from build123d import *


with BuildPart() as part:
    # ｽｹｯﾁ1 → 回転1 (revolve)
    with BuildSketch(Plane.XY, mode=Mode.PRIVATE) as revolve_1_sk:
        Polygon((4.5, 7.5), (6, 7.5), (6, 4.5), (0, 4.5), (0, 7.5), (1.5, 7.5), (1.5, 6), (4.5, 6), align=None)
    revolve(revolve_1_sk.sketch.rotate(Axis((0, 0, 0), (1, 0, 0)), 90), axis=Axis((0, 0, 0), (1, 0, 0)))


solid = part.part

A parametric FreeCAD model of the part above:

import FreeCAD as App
import Part
import Sketcher
from FreeCAD import Vector
Q = App.Units.Quantity

doc = App.newDocument("Part")
body = doc.addObject("PartDesign::Body", "Body")

# Sketch on XY plane
sketch1 = doc.addObject("Sketcher::SketchObject", "Sketch")
body.addObject(sketch1)
sketch1.AttachmentSupport = (doc.XY_Plane, [""])
sketch1.MapMode = "FlatFace"
sketch1.addGeometry([
    Part.LineSegment(Vector(6, 7.5, 0), Vector(4.5, 7.5, 0)),  # 0
    Part.LineSegment(Vector(4.5, 7.5, 0), Vector(4.5, 6, 0)),  # 1
    Part.LineSegment(Vector(4.5, 6, 0), Vector(1.5, 6, 0)),  # 2
    Part.LineSegment(Vector(1.5, 6, 0), Vector(1.5, 7.5, 0)),  # 3
    Part.LineSegment(Vector(1.5, 7.5, 0), Vector(0, 7.5, 0)),  # 4
    Part.LineSegment(Vector(0, 7.5, 0), Vector(0, 4.5, 0)),  # 5
    Part.LineSegment(Vector(0, 4.5, 0), Vector(6, 4.5, 0)),  # 6
    Part.LineSegment(Vector(6, 4.5, 0), Vector(6, 7.5, 0)),  # 7
], False)
sketch1.addConstraint([
    Sketcher.Constraint("Coincident", 0, 2, 1, 1),
    Sketcher.Constraint("Coincident", 1, 2, 2, 1),
    Sketcher.Constraint("Coincident", 2, 2, 3, 1),
    Sketcher.Constraint("Coincident", 3, 2, 4, 1),
    Sketcher.Constraint("Coincident", 4, 2, 5, 1),
    Sketcher.Constraint("Coincident", 5, 2, 6, 1),
    Sketcher.Constraint("Coincident", 6, 2, 7, 1),
    Sketcher.Constraint("Coincident", 7, 2, 0, 1),
    Sketcher.Constraint("Horizontal", 0),
    Sketcher.Constraint("Vertical", 1),
    Sketcher.Constraint("Horizontal", 2),
    Sketcher.Constraint("Vertical", 3),
    Sketcher.Constraint("Horizontal", 4),
    Sketcher.Constraint("Vertical", 5),
    Sketcher.Constraint("Horizontal", 6),
    Sketcher.Constraint("Vertical", 7),
    Sketcher.Constraint("PointOnObject", 4, 2, -2),
    Sketcher.Constraint("Horizontal", 0, 2, 3, 2),
    Sketcher.Constraint("Equal", 0, 4),
    Sketcher.Constraint("Equal", 4, 1),
    Sketcher.Constraint("Equal", 2, 5),
    Sketcher.Constraint("DistanceX", 2, 2, 2, 1, Q("3 mm")),
    Sketcher.Constraint("DistanceX", 6, 1, 6, 2, Q("6 mm")),
    Sketcher.Constraint("DistanceY", -1, 1, 1, 2, Q("6 mm")),
])
revolution = doc.addObject("PartDesign::Revolution", "Revolution")
body.addObject(revolution)
revolution.Profile = sketch1
revolution.ReferenceAxis = (sketch1, ["H_Axis"])
revolution.Angle = 360

doc.recompute()
